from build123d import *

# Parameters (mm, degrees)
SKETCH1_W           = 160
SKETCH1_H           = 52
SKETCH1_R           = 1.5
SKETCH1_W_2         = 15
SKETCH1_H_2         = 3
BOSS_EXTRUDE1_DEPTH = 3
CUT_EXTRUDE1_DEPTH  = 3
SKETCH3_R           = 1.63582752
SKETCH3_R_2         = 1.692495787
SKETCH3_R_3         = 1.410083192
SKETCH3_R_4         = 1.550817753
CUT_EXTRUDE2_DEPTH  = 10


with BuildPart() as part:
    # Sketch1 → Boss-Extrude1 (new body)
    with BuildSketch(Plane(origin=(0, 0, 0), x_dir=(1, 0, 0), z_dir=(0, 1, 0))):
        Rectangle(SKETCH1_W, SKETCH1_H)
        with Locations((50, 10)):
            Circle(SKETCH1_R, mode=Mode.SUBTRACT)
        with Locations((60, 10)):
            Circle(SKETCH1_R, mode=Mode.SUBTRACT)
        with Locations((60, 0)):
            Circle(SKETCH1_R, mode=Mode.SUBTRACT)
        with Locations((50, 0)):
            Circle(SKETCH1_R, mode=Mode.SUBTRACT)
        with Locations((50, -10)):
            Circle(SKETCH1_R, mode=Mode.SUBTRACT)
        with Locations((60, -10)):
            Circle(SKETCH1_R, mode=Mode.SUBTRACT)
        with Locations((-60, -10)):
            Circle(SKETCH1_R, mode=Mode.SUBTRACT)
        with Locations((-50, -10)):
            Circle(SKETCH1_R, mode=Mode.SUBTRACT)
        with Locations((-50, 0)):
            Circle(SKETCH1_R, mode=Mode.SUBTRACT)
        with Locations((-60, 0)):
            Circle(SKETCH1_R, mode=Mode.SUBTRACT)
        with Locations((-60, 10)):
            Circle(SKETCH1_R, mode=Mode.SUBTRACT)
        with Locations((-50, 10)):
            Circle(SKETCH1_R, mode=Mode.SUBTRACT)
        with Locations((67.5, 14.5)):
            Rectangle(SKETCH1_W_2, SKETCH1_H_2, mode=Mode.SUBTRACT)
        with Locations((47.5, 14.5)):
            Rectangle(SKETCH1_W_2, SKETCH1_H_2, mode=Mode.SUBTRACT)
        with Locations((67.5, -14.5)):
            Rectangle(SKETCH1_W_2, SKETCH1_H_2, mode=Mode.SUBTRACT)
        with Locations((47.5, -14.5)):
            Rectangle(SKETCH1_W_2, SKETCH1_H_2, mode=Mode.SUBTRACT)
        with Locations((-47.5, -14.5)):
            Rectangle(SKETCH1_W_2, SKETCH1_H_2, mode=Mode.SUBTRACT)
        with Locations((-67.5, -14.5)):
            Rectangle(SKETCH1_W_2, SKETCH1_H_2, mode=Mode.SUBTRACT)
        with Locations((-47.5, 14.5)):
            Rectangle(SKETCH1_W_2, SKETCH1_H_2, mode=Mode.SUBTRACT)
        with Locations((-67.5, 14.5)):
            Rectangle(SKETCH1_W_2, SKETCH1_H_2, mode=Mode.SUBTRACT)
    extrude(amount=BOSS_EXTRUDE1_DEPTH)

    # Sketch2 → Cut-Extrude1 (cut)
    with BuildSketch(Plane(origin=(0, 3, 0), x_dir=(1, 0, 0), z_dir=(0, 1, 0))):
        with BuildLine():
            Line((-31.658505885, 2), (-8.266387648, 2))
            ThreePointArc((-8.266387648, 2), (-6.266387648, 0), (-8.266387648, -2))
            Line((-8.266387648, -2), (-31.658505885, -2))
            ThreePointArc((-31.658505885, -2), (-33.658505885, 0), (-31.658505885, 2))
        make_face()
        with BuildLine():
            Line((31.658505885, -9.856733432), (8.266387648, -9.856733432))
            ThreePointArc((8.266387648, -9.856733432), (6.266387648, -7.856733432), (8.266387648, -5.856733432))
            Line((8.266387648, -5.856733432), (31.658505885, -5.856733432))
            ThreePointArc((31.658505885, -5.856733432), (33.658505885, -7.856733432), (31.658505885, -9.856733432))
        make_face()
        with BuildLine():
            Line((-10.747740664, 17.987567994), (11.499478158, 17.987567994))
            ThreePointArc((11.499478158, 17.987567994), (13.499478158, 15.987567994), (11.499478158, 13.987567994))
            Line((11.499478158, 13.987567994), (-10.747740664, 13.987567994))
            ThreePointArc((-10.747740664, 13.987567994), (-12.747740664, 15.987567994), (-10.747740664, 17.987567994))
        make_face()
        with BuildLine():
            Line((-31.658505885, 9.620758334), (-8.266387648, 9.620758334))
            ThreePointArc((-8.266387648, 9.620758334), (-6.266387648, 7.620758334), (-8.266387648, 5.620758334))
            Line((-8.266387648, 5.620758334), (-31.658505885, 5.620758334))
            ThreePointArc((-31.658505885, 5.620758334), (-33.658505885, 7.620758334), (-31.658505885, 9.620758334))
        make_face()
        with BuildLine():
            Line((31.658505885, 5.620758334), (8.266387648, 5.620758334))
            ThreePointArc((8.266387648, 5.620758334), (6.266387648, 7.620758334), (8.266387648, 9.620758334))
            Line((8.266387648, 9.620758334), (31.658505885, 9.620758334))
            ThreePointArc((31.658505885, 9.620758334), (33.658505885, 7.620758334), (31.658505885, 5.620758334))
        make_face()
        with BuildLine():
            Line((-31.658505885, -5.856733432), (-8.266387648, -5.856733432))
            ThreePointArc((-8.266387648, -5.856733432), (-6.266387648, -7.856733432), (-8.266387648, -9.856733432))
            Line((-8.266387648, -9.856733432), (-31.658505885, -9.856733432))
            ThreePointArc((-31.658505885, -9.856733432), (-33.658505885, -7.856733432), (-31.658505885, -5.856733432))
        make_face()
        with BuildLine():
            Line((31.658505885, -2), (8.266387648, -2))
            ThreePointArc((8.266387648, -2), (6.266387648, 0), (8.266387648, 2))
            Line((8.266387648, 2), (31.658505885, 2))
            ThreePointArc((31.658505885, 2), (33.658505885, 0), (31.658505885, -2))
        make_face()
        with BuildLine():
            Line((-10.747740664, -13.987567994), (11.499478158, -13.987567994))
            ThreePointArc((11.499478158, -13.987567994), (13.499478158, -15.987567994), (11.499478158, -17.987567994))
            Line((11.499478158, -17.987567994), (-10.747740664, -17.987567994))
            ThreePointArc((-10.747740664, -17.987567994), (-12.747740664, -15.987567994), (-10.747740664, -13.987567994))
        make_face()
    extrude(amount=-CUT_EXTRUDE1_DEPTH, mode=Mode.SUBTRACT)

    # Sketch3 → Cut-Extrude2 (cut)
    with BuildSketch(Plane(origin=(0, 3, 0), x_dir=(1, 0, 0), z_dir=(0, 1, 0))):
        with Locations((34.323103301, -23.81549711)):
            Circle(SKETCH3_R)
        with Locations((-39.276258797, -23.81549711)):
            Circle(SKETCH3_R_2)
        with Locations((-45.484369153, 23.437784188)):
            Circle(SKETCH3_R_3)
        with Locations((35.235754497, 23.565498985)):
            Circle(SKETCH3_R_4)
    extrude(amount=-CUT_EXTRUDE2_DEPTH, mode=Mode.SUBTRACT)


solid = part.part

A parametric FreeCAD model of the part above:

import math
import FreeCAD as App
import Part
import Sketcher

V = App.Vector
Q = App.Units.Quantity


def add_polygon(sketch, points):
    """Adds a closed chain of lines whose ends are joined by coincident constraints."""
    first, n = sketch.GeometryCount, len(points)
    for a, b in zip(points, points[1:] + points[:1]):
        sketch.addGeometry(Part.LineSegment(App.Vector(*a, 0), App.Vector(*b, 0)), False)
    for i in range(n):
        sketch.addConstraint(Sketcher.Constraint("Coincident", first + i, 2, first + (i + 1) % n, 1))

doc = App.newDocument("Part")
body = doc.addObject("PartDesign::Body", "Body")

# Sketch on XZ plane
sketch1 = doc.addObject("Sketcher::SketchObject", "Sketch")
body.addObject(sketch1)
sketch1.AttachmentSupport = (doc.XZ_Plane, [""])
sketch1.MapMode = "FlatFace"
add_polygon(sketch1, [(-80, -26), (-80, 26), (80, 26), (80, -26)])  # lines 0-3
add_polygon(sketch1, [(-60, 16), (-75, 16), (-75, 13), (-60, 13)])  # lines 4-7
add_polygon(sketch1, [(-40, 16), (-55, 16), (-55, 13), (-40, 13)])  # lines 8-11
sketch1.addGeometry(Part.Circle(V(-60, 10, 0), V(0, 0, 1), 1.5), False)  # 12
sketch1.addGeometry(Part.Circle(V(-50, 10, 0), V(0, 0, 1), 1.5), False)  # 13
add_polygon(sketch1, [(55, 16), (40, 16), (40, 13), (55, 13)])  # lines 14-17
add_polygon(sketch1, [(75, 16), (60, 16), (60, 13), (75, 13)])  # lines 18-21
sketch1.addGeometry(Part.Circle(V(50, 10, 0), V(0, 0, 1), 1.5), False)  # 22
sketch1.addGeometry(Part.Circle(V(60, 10, 0), V(0, 0, 1), 1.5), False)  # 23
sketch1.addGeometry(Part.Circle(V(-60, 0, 0), V(0, 0, 1), 1.5), False)  # 24
sketch1.addGeometry(Part.Circle(V(-50, 0, 0), V(0, 0, 1), 1.5), False)  # 25
sketch1.addGeometry(Part.Circle(V(-60, -10, 0), V(0, 0, 1), 1.5), False)  # 26
sketch1.addGeometry(Part.Circle(V(-50, -10, 0), V(0, 0, 1), 1.5), False)  # 27
add_polygon(sketch1, [(-60, -13), (-75, -13), (-75, -16), (-60, -16)])  # lines 28-31
add_polygon(sketch1, [(-40, -13), (-55, -13), (-55, -16), (-40, -16)])  # lines 32-35
sketch1.addGeometry(Part.Circle(V(50, 0, 0), V(0, 0, 1), 1.5), False)  # 36
sketch1.addGeometry(Part.Circle(V(60, 0, 0), V(0, 0, 1), 1.5), False)  # 37
sketch1.addGeometry(Part.Circle(V(50, -10, 0), V(0, 0, 1), 1.5), False)  # 38
sketch1.addGeometry(Part.Circle(V(60, -10, 0), V(0, 0, 1), 1.5), False)  # 39
add_polygon(sketch1, [(55, -13), (40, -13), (40, -16), (55, -16)])  # lines 40-43
add_polygon(sketch1, [(75, -13), (60, -13), (60, -16), (75, -16)])  # lines 44-47
sketch1.addConstraint([
    Sketcher.Constraint("Vertical", 0),
    Sketcher.Constraint("Horizontal", 1),
    Sketcher.Constraint("Vertical", 2),
    Sketcher.Constraint("Horizontal", 3),
    Sketcher.Constraint("Horizontal", 4),
    Sketcher.Constraint("Vertical", 5),
    Sketcher.Constraint("Horizontal", 6),
    Sketcher.Constraint("Vertical", 7),
    Sketcher.Constraint("Horizontal", 8),
    Sketcher.Constraint("Vertical", 9),
    Sketcher.Constraint("Horizontal", 10),
    Sketcher.Constraint("Vertical", 11),
    Sketcher.Constraint("Horizontal", 14),
    Sketcher.Constraint("Vertical", 15),
    Sketcher.Constraint("Horizontal", 16),
    Sketcher.Constraint("Vertical", 17),
    Sketcher.Constraint("Horizontal", 18),
    Sketcher.Constraint("Vertical", 19),
    Sketcher.Constraint("Horizontal", 20),
    Sketcher.Constraint("Vertical", 21),
    Sketcher.Constraint("Horizontal", 28),
    Sketcher.Constraint("Vertical", 29),
    Sketcher.Constraint("Horizontal", 30),
    Sketcher.Constraint("Vertical", 31),
    Sketcher.Constraint("Horizontal", 32),
    Sketcher.Constraint("Vertical", 33),
    Sketcher.Constraint("Horizontal", 34),
    Sketcher.Constraint("Vertical", 35),
    Sketcher.Constraint("Horizontal", 40),
    Sketcher.Constraint("Vertical", 41),
    Sketcher.Constraint("Horizontal", 42),
    Sketcher.Constraint("Vertical", 43),
    Sketcher.Constraint("Horizontal", 44),
    Sketcher.Constraint("Vertical", 45),
    Sketcher.Constraint("Horizontal", 46),
    Sketcher.Constraint("Vertical", 47),
    Sketcher.Constraint("Equal", 12, 13),
    Sketcher.Constraint("Equal", 13, 22),
    Sketcher.Constraint("Equal", 22, 23),
    Sketcher.Constraint("Equal", 23, 24),
    Sketcher.Constraint("Equal", 24, 25),
    Sketcher.Constraint("Equal", 25, 26),
    Sketcher.Constraint("Equal", 26, 27),
    Sketcher.Constraint("Equal", 27, 36),
    Sketcher.Constraint("Equal", 36, 37),
    Sketcher.Constraint("Equal", 37, 38),
    Sketcher.Constraint("Equal", 38, 39),
    Sketcher.Constraint("Symmetric", 23, 3, 26, 3, -1, 1),
    Sketcher.Constraint("Symmetric", 22, 3, 27, 3, -1, 1),
    Sketcher.Constraint("Symmetric", 25, 3, 36, 3, -1, 1),
    Sketcher.Constraint("Symmetric", 24, 3, 37, 3, -1, 1),
    Sketcher.Constraint("Symmetric", 13, 3, 38, 3, -1, 1),
    Sketcher.Constraint("Symmetric", 12, 3, 39, 3, -1, 1),
    Sketcher.Constraint("Symmetric", 0, 2, 2, 2, -1, 1),
    Sketcher.Constraint("Symmetric", 20, 2, 28, 2, -1, 1),
    Sketcher.Constraint("Symmetric", 18, 2, 30, 2, -1, 1),
    Sketcher.Constraint("Symmetric", 16, 2, 32, 2, -1, 1),
    Sketcher.Constraint("Symmetric", 14, 2, 34, 2, -1, 1),
    Sketcher.Constraint("Symmetric", 10, 2, 40, 2, -1, 1),
    Sketcher.Constraint("Symmetric", 8, 2, 42, 2, -1, 1),
    Sketcher.Constraint("Symmetric", 6, 2, 44, 2, -1, 1),
    Sketcher.Constraint("Symmetric", 4, 2, 46, 2, -1, 1),
    Sketcher.Constraint("Symmetric", 13, 3, 22, 3, -2),
    Sketcher.Constraint("Symmetric", 12, 3, 23, 3, -2),
    Sketcher.Constraint("Symmetric", 11, 2, 14, 2, -2),
    Sketcher.Constraint("Symmetric", 9, 2, 16, 2, -2),
    Sketcher.Constraint("Symmetric", 7, 2, 18, 2, -2),
    Sketcher.Constraint("Symmetric", 5, 2, 20, 2, -2),
    Sketcher.Constraint("PointOnObject", 24, 3, -1),
    Sketcher.Constraint("PointOnObject", 25, 3, -1),
    Sketcher.Constraint("Horizontal", 12, 3, 13, 3),
    Sketcher.Constraint("Horizontal", 7, 2, 8, 2),
    Sketcher.Constraint("Horizontal", 6, 2, 9, 2),
    Sketcher.Constraint("Vertical", 12, 3, 24, 3),
    Sketcher.Constraint("Vertical", 13, 3, 25, 3),
    Sketcher.Constraint("Vertical", 26, 3, 6, 2),
    Sketcher.Constraint("Equal", 6, 8),
    Sketcher.Constraint("Diameter", 12, Q("3 mm")),
    Sketcher.Constraint("DistanceX", 1, 1, 1, 2, Q("160 mm")),
    Sketcher.Constraint("DistanceX", 4, 2, 4, 1, Q("15 mm")),
    Sketcher.Constraint("DistanceY", 0, 1, 0, 2, Q("52 mm")),
    Sketcher.Constraint("DistanceY", 5, 2, 5, 1, Q("3 mm")),
    Sketcher.Constraint("DistanceX", 12, 3, -1, 1, Q("60 mm")),
    Sketcher.Constraint("DistanceY", -1, 1, 12, 3, Q("10 mm")),
    Sketcher.Constraint("DistanceX", 13, 3, -1, 1, Q("50 mm")),
    Sketcher.Constraint("DistanceY", -1, 1, 4, 2, Q("16 mm")),
    Sketcher.Constraint("DistanceX", 8, 2, -1, 1, Q("55 mm")),
])
pad1 = doc.addObject("PartDesign::Pad", "Pad")
body.addObject(pad1)
pad1.Profile = sketch1
pad1.Length = 3
pad1.Reversed = True

# Sketch on XZ plane
sketch2 = doc.addObject("Sketcher::SketchObject", "Sketch001")
body.addObject(sketch2)
sketch2.AttachmentSupport = (doc.XZ_Plane, [""])
sketch2.MapMode = "FlatFace"
sketch2.AttachmentOffset = App.Placement(V(0, 0, -3), App.Rotation())
sketch2.addGeometry([
    Part.LineSegment(V(-8.266388, -2, 0), V(-31.658506, -2, 0)),  # 0
    Part.ArcOfCircle(Part.Circle(V(-31.658506, 0, 0), V(0, 0, 1), 2), math.radians(90), math.radians(270)),  # 1
    Part.LineSegment(V(-31.658506, 2, 0), V(-8.266388, 2, 0)),  # 2
    Part.ArcOfCircle(Part.Circle(V(-8.266388, 0, 0), V(0, 0, 1), 2), math.radians(-90), math.radians(90)),  # 3
    Part.LineSegment(V(8.266388, 9.856733, 0), V(31.658506, 9.856733, 0)),  # 4
    Part.ArcOfCircle(Part.Circle(V(31.658506, 7.856733, 0), V(0, 0, 1), 2), math.radians(-90), math.radians(90)),  # 5
    Part.LineSegment(V(31.658506, 5.856733, 0), V(8.266388, 5.856733, 0)),  # 6
    Part.ArcOfCircle(Part.Circle(V(8.266388, 7.856733, 0), V(0, 0, 1), 2), math.radians(90), math.radians(270)),  # 7
    Part.LineSegment(V(11.499478, -17.987568, 0), V(-10.747741, -17.987568, 0)),  # 8
    Part.ArcOfCircle(Part.Circle(V(-10.747741, -15.987568, 0), V(0, 0, 1), 2), math.radians(90), math.radians(270)),  # 9
    Part.LineSegment(V(-10.747741, -13.987568, 0), V(11.499478, -13.987568, 0)),  # 10
    Part.ArcOfCircle(Part.Circle(V(11.499478, -15.987568, 0), V(0, 0, 1), 2), math.radians(-90), math.radians(90)),  # 11
    Part.LineSegment(V(-8.266388, -9.620758, 0), V(-31.658506, -9.620758, 0)),  # 12
    Part.ArcOfCircle(Part.Circle(V(-31.658506, -7.620758, 0), V(0, 0, 1), 2), math.radians(90), math.radians(270)),  # 13
    Part.LineSegment(V(-31.658506, -5.620758, 0), V(-8.266388, -5.620758, 0)),  # 14
    Part.ArcOfCircle(Part.Circle(V(-8.266388, -7.620758, 0), V(0, 0, 1), 2), math.radians(-90), math.radians(90)),  # 15
    Part.LineSegment(V(8.266388, -5.620758, 0), V(31.658506, -5.620758, 0)),  # 16
    Part.ArcOfCircle(Part.Circle(V(31.658506, -7.620758, 0), V(0, 0, 1), 2), math.radians(-90), math.radians(90)),  # 17
    Part.LineSegment(V(31.658506, -9.620758, 0), V(8.266388, -9.620758, 0)),  # 18
    Part.ArcOfCircle(Part.Circle(V(8.266388, -7.620758, 0), V(0, 0, 1), 2), math.radians(90), math.radians(270)),  # 19
    Part.LineSegment(V(-8.266388, 5.856733, 0), V(-31.658506, 5.856733, 0)),  # 20
    Part.ArcOfCircle(Part.Circle(V(-31.658506, 7.856733, 0), V(0, 0, 1), 2), math.radians(90), math.radians(270)),  # 21
    Part.LineSegment(V(-31.658506, 9.856733, 0), V(-8.266388, 9.856733, 0)),  # 22
    Part.ArcOfCircle(Part.Circle(V(-8.266388, 7.856733, 0), V(0, 0, 1), 2), math.radians(-90), math.radians(90)),  # 23
    Part.LineSegment(V(8.266388, 2, 0), V(31.658506, 2, 0)),  # 24
    Part.ArcOfCircle(Part.Circle(V(31.658506, 0, 0), V(0, 0, 1), 2), math.radians(-90), math.radians(90)),  # 25
    Part.LineSegment(V(31.658506, -2, 0), V(8.266388, -2, 0)),  # 26
    Part.ArcOfCircle(Part.Circle(V(8.266388, 0, 0), V(0, 0, 1), 2), math.radians(90), math.radians(270)),  # 27
    Part.LineSegment(V(11.499478, 13.987568, 0), V(-10.747741, 13.987568, 0)),  # 28
    Part.ArcOfCircle(Part.Circle(V(-10.747741, 15.987568, 0), V(0, 0, 1), 2), math.radians(90), math.radians(270)),  # 29
    Part.LineSegment(V(-10.747741, 17.987568, 0), V(11.499478, 17.987568, 0)),  # 30
    Part.ArcOfCircle(Part.Circle(V(11.499478, 15.987568, 0), V(0, 0, 1), 2), math.radians(-90), math.radians(90)),  # 31
], False)
sketch2.addConstraint([
    Sketcher.Constraint("Tangent", 0, 2, 1, 2),
    Sketcher.Constraint("Tangent", 1, 1, 2, 1),
    Sketcher.Constraint("Tangent", 2, 2, 3, 2),
    Sketcher.Constraint("Tangent", 3, 1, 0, 1),
    Sketcher.Constraint("Tangent", 4, 2, 5, 2),
    Sketcher.Constraint("Tangent", 5, 1, 6, 1),
    Sketcher.Constraint("Tangent", 6, 2, 7, 2),
    Sketcher.Constraint("Tangent", 7, 1, 4, 1),
    Sketcher.Constraint("Tangent", 8, 2, 9, 2),
    Sketcher.Constraint("Tangent", 9, 1, 10, 1),
    Sketcher.Constraint("Tangent", 10, 2, 11, 2),
    Sketcher.Constraint("Tangent", 11, 1, 8, 1),
    Sketcher.Constraint("Tangent", 12, 2, 13, 2),
    Sketcher.Constraint("Tangent", 13, 1, 14, 1),
    Sketcher.Constraint("Tangent", 14, 2, 15, 2),
    Sketcher.Constraint("Tangent", 15, 1, 12, 1),
    Sketcher.Constraint("Tangent", 16, 2, 17, 2),
    Sketcher.Constraint("Tangent", 17, 1, 18, 1),
    Sketcher.Constraint("Tangent", 18, 2, 19, 2),
    Sketcher.Constraint("Tangent", 19, 1, 16, 1),
    Sketcher.Constraint("Tangent", 20, 2, 21, 2),
    Sketcher.Constraint("Tangent", 21, 1, 22, 1),
    Sketcher.Constraint("Tangent", 22, 2, 23, 2),
    Sketcher.Constraint("Tangent", 23, 1, 20, 1),
    Sketcher.Constraint("Tangent", 24, 2, 25, 2),
    Sketcher.Constraint("Tangent", 25, 1, 26, 1),
    Sketcher.Constraint("Tangent", 26, 2, 27, 2),
    Sketcher.Constraint("Tangent", 27, 1, 24, 1),
    Sketcher.Constraint("Tangent", 28, 2, 29, 2),
    Sketcher.Constraint("Tangent", 29, 1, 30, 1),
    Sketcher.Constraint("Tangent", 30, 2, 31, 2),
    Sketcher.Constraint("Tangent", 31, 1, 28, 1),
    Sketcher.Constraint("Horizontal", 0),
    Sketcher.Constraint("Horizontal", 2),
    Sketcher.Constraint("Horizontal", 4),
    Sketcher.Constraint("Horizontal", 6),
    Sketcher.Constraint("Horizontal", 8),
    Sketcher.Constraint("Horizontal", 10),
    Sketcher.Constraint("Horizontal", 12),
    Sketcher.Constraint("Horizontal", 14),
    Sketcher.Constraint("Horizontal", 16),
    Sketcher.Constraint("Horizontal", 18),
    Sketcher.Constraint("Horizontal", 20),
    Sketcher.Constraint("Horizontal", 22),
    Sketcher.Constraint("Horizontal", 24),
    Sketcher.Constraint("Horizontal", 26),
    Sketcher.Constraint("Horizontal", 28),
    Sketcher.Constraint("Horizontal", 30),
    Sketcher.Constraint("Equal", 3, 5),
    Sketcher.Constraint("Equal", 7, 9),
    Sketcher.Constraint("Equal", 11, 13),
    Sketcher.Constraint("Equal", 15, 17),
    Sketcher.Constraint("Equal", 19, 21),
    Sketcher.Constraint("Equal", 23, 25),
    Sketcher.Constraint("Equal", 27, 29),
    Sketcher.Constraint("Symmetric", 1, 3, 25, 3, -1, 1),
    Sketcher.Constraint("Symmetric", 13, 3, 17, 3, -2),
    Sketcher.Constraint("Symmetric", 5, 3, 21, 3, -2),
    Sketcher.Constraint("Symmetric", 3, 3, 27, 3, -2),
    Sketcher.Constraint("Symmetric", 9, 3, 29, 3, -1),
    Sketcher.Constraint("Vertical", 1, 3, 13, 3),
    Sketcher.Constraint("Vertical", 3, 3, 15, 3),
    Sketcher.Constraint("Vertical", 5, 3, 17, 3),
    Sketcher.Constraint("Vertical", 7, 3, 19, 3),
    Sketcher.Constraint("Vertical", 15, 3, 23, 3),
    Sketcher.Constraint("Vertical", 19, 3, 27, 3),
    Sketcher.Constraint("Vertical", 11, 3, 31, 3),
    Sketcher.Constraint("Radius", 1, Q("2 mm")),
    Sketcher.Constraint("DistanceX", 0, 2, 0, 1, Q("23.392118 mm")),
    Sketcher.Constraint("DistanceX", 8, 2, 8, 1, Q("22.247219 mm")),
    Sketcher.Constraint("DistanceY", 9, 3, 7, 3, Q("23.844301 mm")),
    Sketcher.Constraint("DistanceX", 9, 3, -1, 1, Q("10.747741 mm")),
    Sketcher.Constraint("DistanceY", 13, 3, -1, 1, Q("7.620758 mm")),
    Sketcher.Constraint("DistanceX", 1, 3, 5, 3, Q("63.317012 mm")),
    Sketcher.Constraint("DistanceY", 9, 3, 13, 3, Q("8.36681 mm")),
])
pocket1 = doc.addObject("PartDesign::Pocket", "Pocket")
body.addObject(pocket1)
pocket1.Profile = sketch2
pocket1.Length = 3
pocket1.Reversed = True

# Sketch on XZ plane
sketch3 = doc.addObject("Sketcher::SketchObject", "Sketch002")
body.addObject(sketch3)
sketch3.AttachmentSupport = (doc.XZ_Plane, [""])
sketch3.MapMode = "FlatFace"
sketch3.AttachmentOffset = App.Placement(V(0, 0, -3), App.Rotation())
sketch3.addGeometry([
    Part.Circle(V(34.323103, 23.815497, 0), V(0, 0, 1), 1.635828),
    Part.Circle(V(-39.276259, 23.815497, 0), V(0, 0, 1), 1.692496),
    Part.Circle(V(-45.484369, -23.437784, 0), V(0, 0, 1), 1.410083),
    Part.Circle(V(35.235754, -23.565499, 0), V(0, 0, 1), 1.550818),
], False)
sketch3.addConstraint([
    Sketcher.Constraint("Horizontal", 0, 3, 1, 3),
    Sketcher.Constraint("Diameter", 1, Q("3.384992 mm")),
    Sketcher.Constraint("Diameter", 0, Q("3.271655 mm")),
    Sketcher.Constraint("Diameter", 2, Q("2.820166 mm")),
    Sketcher.Constraint("Diameter", 3, Q("3.101636 mm")),
    Sketcher.Constraint("DistanceY", 3, 3, -1, 1, Q("23.565499 mm")),
    Sketcher.Constraint("DistanceX", 1, 3, -1, 1, Q("39.276259 mm")),
    Sketcher.Constraint("DistanceX", 2, 3, -1, 1, Q("45.484369 mm")),
    Sketcher.Constraint("DistanceY", 2, 3, 1, 3, Q("47.253281 mm")),
    Sketcher.Constraint("DistanceX", 0, 3, 3, 3, Q("0.912651 mm")),
    Sketcher.Constraint("DistanceX", -1, 1, 0, 3, Q("34.323103 mm")),
    Sketcher.Constraint("DistanceY", -1, 1, 0, 3, Q("23.815497 mm")),
])
pocket2 = doc.addObject("PartDesign::Pocket", "Pocket001")
body.addObject(pocket2)
pocket2.Profile = sketch3
pocket2.Length = 10
pocket2.Reversed = True

doc.recompute()
